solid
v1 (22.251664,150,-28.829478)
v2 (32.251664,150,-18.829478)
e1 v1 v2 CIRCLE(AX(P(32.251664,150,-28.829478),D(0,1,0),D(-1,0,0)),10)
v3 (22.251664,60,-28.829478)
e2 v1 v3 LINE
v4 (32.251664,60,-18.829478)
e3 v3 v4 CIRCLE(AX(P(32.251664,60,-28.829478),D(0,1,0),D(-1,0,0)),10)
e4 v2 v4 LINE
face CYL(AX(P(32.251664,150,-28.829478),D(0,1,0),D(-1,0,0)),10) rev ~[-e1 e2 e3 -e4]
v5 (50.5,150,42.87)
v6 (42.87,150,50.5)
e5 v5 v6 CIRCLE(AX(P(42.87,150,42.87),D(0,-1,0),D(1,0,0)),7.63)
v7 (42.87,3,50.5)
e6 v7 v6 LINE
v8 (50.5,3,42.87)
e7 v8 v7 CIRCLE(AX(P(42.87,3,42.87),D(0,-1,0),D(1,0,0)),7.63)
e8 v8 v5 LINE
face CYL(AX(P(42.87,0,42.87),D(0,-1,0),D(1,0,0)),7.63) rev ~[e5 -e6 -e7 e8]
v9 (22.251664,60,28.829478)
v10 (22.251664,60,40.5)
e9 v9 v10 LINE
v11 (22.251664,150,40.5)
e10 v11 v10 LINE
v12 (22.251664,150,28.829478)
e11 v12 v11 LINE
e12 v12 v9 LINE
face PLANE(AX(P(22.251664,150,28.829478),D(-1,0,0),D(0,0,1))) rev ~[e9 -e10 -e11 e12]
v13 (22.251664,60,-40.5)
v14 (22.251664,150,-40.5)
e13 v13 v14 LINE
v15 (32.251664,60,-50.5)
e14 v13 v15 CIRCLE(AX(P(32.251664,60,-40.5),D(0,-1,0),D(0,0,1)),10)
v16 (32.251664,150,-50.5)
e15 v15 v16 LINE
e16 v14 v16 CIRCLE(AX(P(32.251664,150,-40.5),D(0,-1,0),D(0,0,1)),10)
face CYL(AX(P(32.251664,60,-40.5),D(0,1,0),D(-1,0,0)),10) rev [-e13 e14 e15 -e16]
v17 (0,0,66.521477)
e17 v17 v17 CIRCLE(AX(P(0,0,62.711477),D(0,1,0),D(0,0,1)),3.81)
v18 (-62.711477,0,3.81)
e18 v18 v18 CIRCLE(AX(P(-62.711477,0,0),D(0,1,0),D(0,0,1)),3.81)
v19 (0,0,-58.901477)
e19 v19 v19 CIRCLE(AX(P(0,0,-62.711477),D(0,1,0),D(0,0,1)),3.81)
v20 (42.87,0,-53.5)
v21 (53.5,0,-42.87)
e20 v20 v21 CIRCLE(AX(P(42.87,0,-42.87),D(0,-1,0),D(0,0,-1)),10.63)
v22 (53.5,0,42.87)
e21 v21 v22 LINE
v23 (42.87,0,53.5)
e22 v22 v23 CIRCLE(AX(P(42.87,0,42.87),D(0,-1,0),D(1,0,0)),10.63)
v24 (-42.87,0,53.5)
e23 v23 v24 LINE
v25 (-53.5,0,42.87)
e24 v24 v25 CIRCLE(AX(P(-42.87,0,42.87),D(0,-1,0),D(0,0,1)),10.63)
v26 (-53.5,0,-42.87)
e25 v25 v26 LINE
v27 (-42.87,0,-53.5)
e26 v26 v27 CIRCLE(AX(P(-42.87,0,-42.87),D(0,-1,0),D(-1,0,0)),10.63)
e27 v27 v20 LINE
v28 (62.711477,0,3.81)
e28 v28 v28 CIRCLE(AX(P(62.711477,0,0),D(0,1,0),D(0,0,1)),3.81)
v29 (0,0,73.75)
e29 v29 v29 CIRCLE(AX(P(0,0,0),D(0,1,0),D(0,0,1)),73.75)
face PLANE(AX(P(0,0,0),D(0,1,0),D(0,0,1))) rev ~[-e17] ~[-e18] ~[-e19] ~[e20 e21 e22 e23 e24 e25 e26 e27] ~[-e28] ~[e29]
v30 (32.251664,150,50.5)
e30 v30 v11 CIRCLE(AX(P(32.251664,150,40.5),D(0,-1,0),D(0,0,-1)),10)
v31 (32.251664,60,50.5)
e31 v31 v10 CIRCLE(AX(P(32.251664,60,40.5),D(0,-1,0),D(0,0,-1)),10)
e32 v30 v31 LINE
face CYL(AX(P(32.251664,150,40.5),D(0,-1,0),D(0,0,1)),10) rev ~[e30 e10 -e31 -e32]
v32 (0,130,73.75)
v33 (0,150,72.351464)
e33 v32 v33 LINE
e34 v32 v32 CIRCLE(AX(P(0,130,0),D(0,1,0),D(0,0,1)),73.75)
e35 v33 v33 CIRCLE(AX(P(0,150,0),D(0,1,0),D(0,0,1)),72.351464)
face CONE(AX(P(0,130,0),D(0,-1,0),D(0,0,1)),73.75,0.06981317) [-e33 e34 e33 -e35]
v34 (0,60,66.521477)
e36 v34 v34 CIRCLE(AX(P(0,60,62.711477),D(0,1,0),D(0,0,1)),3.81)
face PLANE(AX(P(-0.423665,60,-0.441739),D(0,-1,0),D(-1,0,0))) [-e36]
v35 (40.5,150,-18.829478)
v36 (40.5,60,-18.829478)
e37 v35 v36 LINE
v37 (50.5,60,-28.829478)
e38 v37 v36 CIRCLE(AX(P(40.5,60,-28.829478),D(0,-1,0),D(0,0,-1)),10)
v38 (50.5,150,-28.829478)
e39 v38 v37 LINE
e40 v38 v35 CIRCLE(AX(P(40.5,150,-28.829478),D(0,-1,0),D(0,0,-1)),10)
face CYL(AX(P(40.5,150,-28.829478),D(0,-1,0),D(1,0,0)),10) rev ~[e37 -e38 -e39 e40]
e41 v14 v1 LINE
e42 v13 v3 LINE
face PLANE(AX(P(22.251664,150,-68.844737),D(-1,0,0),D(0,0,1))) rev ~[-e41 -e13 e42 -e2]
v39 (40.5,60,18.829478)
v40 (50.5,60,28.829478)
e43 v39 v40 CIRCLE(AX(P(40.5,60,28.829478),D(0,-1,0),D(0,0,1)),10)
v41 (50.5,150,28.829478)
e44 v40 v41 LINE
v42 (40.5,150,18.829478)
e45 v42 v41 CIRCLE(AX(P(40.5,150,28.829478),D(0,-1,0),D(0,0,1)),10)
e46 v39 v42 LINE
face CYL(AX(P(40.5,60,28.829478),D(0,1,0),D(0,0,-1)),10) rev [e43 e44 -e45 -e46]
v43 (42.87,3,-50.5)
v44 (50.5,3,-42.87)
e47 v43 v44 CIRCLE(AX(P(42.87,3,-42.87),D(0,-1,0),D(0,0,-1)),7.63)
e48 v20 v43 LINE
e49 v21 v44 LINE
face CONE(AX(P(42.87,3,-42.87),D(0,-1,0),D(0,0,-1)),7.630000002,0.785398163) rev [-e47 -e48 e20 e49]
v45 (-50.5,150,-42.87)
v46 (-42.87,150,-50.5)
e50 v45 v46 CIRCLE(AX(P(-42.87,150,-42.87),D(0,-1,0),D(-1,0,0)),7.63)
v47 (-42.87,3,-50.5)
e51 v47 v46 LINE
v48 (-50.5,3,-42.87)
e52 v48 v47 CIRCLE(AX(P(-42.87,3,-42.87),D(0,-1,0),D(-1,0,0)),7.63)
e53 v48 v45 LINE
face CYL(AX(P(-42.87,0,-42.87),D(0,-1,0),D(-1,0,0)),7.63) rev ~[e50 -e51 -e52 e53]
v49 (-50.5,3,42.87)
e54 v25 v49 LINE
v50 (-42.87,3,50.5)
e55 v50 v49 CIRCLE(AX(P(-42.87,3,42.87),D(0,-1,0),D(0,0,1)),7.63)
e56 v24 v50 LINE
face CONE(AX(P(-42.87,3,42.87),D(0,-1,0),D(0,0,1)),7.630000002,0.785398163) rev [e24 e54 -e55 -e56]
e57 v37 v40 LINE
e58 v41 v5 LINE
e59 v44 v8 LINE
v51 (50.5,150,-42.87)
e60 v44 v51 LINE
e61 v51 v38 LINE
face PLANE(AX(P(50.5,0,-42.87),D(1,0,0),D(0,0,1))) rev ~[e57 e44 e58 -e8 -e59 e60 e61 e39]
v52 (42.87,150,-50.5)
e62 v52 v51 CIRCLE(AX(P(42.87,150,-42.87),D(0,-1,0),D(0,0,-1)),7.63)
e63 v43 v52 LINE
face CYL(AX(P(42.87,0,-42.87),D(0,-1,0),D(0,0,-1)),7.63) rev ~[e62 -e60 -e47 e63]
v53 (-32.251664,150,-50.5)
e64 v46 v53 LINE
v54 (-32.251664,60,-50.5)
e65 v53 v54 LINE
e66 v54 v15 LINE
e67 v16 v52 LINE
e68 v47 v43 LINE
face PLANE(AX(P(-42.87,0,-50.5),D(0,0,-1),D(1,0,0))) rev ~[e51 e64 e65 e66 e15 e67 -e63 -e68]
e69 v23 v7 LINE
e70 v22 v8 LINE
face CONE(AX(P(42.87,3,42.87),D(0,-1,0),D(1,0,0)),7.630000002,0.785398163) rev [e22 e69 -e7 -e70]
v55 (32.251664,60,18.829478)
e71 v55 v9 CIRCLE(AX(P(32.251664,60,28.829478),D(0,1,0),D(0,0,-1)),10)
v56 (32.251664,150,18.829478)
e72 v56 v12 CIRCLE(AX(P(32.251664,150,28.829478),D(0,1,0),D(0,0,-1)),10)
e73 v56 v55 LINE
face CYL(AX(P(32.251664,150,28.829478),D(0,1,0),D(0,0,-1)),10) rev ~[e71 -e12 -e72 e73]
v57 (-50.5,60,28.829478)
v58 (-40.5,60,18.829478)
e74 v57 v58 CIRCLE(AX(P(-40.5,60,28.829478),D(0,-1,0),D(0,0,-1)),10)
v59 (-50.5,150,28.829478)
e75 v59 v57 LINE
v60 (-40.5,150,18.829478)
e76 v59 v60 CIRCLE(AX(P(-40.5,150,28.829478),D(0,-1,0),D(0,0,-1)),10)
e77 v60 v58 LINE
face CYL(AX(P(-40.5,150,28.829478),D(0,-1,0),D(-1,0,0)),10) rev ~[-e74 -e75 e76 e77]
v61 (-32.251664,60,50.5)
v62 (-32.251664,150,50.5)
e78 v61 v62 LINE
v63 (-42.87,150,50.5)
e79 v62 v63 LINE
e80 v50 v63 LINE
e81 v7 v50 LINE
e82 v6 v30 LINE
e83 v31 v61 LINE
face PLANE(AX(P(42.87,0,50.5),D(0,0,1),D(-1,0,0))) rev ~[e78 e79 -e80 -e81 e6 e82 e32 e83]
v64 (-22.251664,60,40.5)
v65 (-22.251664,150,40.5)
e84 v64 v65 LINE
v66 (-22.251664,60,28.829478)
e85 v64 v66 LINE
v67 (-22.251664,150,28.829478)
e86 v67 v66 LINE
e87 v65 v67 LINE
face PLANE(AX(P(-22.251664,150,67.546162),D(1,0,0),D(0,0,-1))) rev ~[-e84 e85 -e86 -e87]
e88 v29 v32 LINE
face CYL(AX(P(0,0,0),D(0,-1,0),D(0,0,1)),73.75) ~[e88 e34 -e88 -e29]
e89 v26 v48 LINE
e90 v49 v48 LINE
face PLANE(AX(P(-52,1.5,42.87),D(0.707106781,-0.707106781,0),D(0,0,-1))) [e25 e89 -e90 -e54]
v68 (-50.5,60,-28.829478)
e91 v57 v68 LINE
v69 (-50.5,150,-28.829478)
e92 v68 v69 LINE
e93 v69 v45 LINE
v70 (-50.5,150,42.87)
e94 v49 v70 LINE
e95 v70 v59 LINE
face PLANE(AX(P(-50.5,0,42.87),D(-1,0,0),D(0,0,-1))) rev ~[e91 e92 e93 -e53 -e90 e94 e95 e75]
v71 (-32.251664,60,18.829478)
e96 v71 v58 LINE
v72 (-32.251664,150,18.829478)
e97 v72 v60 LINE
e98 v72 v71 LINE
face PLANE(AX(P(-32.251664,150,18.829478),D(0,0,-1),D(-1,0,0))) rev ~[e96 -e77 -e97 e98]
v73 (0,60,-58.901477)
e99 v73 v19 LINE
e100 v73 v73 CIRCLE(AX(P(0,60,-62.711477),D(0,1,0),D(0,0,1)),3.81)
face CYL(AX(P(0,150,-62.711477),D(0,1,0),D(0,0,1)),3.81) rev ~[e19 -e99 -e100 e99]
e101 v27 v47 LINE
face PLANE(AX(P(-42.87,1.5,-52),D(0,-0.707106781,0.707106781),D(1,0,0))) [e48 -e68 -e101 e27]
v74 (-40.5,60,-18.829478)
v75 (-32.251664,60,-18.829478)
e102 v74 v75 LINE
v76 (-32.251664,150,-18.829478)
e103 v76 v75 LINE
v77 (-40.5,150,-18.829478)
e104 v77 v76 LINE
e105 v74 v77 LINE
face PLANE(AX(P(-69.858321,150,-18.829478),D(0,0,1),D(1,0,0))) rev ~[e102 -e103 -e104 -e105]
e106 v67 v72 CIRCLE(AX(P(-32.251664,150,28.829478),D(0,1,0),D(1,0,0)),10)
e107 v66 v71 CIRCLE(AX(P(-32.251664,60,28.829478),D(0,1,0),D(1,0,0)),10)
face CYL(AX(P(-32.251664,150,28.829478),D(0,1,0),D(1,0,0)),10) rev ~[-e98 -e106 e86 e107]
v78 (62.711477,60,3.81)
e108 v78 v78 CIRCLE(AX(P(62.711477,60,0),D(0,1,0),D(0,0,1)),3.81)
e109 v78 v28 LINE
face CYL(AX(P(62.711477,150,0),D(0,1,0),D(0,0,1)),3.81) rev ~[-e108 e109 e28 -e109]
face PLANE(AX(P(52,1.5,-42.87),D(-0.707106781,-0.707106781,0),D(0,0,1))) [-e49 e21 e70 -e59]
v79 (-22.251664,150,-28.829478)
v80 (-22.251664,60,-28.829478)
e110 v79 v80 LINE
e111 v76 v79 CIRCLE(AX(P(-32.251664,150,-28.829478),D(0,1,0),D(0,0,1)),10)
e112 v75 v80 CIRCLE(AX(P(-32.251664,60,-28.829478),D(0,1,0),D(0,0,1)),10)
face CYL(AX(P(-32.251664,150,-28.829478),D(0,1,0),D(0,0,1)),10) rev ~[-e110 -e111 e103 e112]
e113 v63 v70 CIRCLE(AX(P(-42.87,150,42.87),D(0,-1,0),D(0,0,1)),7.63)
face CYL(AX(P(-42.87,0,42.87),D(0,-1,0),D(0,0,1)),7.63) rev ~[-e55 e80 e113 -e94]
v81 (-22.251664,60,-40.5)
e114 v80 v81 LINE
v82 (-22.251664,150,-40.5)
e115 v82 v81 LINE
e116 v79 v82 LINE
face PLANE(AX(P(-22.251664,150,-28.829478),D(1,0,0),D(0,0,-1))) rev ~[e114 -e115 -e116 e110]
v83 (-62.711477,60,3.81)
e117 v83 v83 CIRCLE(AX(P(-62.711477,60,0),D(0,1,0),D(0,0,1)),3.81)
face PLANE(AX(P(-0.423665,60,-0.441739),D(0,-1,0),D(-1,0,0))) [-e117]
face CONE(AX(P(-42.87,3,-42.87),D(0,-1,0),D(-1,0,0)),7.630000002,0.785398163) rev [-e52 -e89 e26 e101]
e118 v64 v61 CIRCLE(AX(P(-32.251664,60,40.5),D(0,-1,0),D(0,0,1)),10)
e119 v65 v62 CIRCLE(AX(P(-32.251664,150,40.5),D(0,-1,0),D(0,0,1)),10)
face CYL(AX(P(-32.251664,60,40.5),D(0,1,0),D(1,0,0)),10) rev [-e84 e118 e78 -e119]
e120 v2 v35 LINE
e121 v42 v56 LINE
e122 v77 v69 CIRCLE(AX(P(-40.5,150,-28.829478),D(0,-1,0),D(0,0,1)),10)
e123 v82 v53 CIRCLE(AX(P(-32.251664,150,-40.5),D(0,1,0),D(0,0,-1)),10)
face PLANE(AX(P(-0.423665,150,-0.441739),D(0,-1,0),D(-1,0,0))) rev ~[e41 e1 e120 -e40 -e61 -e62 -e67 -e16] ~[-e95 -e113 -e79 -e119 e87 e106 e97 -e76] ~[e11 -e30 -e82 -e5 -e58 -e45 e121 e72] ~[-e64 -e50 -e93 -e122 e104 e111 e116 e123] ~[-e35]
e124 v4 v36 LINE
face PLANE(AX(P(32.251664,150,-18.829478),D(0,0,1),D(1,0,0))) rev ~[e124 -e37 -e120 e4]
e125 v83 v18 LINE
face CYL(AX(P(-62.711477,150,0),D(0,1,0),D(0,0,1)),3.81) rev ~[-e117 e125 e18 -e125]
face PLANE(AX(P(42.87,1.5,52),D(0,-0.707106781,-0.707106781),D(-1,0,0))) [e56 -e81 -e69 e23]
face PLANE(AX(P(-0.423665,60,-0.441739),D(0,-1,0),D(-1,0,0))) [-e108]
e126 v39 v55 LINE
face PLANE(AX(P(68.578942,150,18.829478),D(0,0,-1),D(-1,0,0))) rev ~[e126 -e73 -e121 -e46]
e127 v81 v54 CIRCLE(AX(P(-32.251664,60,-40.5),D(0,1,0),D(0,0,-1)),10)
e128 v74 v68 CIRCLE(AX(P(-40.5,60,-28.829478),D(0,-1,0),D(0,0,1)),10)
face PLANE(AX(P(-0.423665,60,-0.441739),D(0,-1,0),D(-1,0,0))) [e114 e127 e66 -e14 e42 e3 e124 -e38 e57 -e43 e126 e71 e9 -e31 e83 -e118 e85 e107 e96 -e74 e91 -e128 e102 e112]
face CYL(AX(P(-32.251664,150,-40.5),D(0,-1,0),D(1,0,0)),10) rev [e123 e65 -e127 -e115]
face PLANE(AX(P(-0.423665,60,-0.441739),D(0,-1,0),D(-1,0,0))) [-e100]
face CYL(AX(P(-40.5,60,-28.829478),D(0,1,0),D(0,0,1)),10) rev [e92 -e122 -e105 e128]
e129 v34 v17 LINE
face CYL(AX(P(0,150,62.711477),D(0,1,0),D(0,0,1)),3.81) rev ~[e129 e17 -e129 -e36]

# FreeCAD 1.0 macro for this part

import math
import FreeCAD as App
import Part
import Sketcher

V = App.Vector


def edges_at(feature, points):
    """Names of the edges that pass closest to the given points."""
    edges = feature.Shape.Edges
    near = lambda p: min(range(len(edges)), key=lambda i: edges[i].distToShape(Part.Vertex(*p))[0])
    return sorted({f"Edge{near(p) + 1}" for p in points})

doc = App.newDocument("Part")
params = doc.addObject("Spreadsheet::Sheet", "Params")
for row, (alias, value) in enumerate([
    ("sketch1_diameter", "147.5 mm"),
    ("sketch1_radius", "7.63 mm"),
    ("sketch1_width", "85.74 mm"),
    ("pad1_length", "150 mm"),
    ("sketch2_diameter", "7.62 mm"),
    ("chamfer_size", "20 mm"),
    ("chamfer_size2", "1.398536 mm"),
    ("sketch3_radius", "10 mm"),
    ("pad2_length", "90 mm"),
    ("fillet_radius", "10 mm"),
    ("fillet2_radius", "10 mm"),
    ("fillet3_radius", "10 mm"),
    ("chamfer2_size", "3 mm"),
], start=1):
    params.set(f"A{row}", alias)
    params.set(f"B{row}", "=" + value)
    params.setAlias(f"B{row}", alias)

body = doc.addObject("PartDesign::Body", "Body")

sketch1 = doc.addObject("Sketcher::SketchObject", "Sketch")
body.addObject(sketch1)
sketch1.AttachmentSupport = (doc.XZ_Plane, [""])
sketch1.MapMode = "FlatFace"
sketch1.addGeometry(Part.Circle(V(0, 0, 0), V(0, 0, 1), 73.75), False)
sketch1.addGeometry(Part.ArcOfCircle(Part.Circle(V(42.87, 42.87, 0), V(0, 0, 1), 7.63), math.radians(0), math.radians(90)), False)
sketch1.addGeometry(Part.LineSegment(V(42.87, 50.5, 0), V(-42.87, 50.5, 0)), False)
sketch1.addGeometry(Part.ArcOfCircle(Part.Circle(V(-42.87, 42.87, 0), V(0, 0, 1), 7.63), math.radians(90), math.radians(180)), False)
sketch1.addGeometry(Part.LineSegment(V(-50.5, 42.87, 0), V(-50.5, -42.87, 0)), False)
sketch1.addGeometry(Part.ArcOfCircle(Part.Circle(V(-42.87, -42.87, 0), V(0, 0, 1), 7.63), math.radians(-180), math.radians(-90)), False)
sketch1.addGeometry(Part.LineSegment(V(-42.87, -50.5, 0), V(42.87, -50.5, 0)), False)
sketch1.addGeometry(Part.ArcOfCircle(Part.Circle(V(42.87, -42.87, 0), V(0, 0, 1), 7.63), math.radians(-90), math.radians(0)), False)
sketch1.addGeometry(Part.LineSegment(V(50.5, -42.87, 0), V(50.5, 42.87, 0)), False)
sketch1.addConstraint(Sketcher.Constraint("Tangent", 1, 2, 2, 1))
sketch1.addConstraint(Sketcher.Constraint("Tangent", 2, 2, 3, 1))
sketch1.addConstraint(Sketcher.Constraint("Tangent", 3, 2, 4, 1))
sketch1.addConstraint(Sketcher.Constraint("Tangent", 4, 2, 5, 1))
sketch1.addConstraint(Sketcher.Constraint("Tangent", 5, 2, 6, 1))
sketch1.addConstraint(Sketcher.Constraint("Tangent", 6, 2, 7, 1))
sketch1.addConstraint(Sketcher.Constraint("Tangent", 7, 2, 8, 1))
sketch1.addConstraint(Sketcher.Constraint("Tangent", 8, 2, 1, 1))
sketch1.addConstraint(Sketcher.Constraint("Horizontal", 2))
sketch1.addConstraint(Sketcher.Constraint("Vertical", 4))
sketch1.addConstraint(Sketcher.Constraint("Horizontal", 6))
sketch1.addConstraint(Sketcher.Constraint("Vertical", 8))
sketch1.addConstraint(Sketcher.Constraint("Coincident", 0, 3, -1, 1))
sketch1.addConstraint(Sketcher.Constraint("Equal", 1, 3))
sketch1.addConstraint(Sketcher.Constraint("Equal", 3, 5))
sketch1.addConstraint(Sketcher.Constraint("Equal", 5, 7))
sketch1.addConstraint(Sketcher.Constraint("Symmetric", 1, 3, 5, 3, -1, 1))
sketch1.addConstraint(Sketcher.Constraint("Equal", 6, 4))
sketch1.addConstraint(Sketcher.Constraint("Diameter", 0, 147.5))
sketch1.addConstraint(Sketcher.Constraint("Radius", 1, 7.63))
sketch1.addConstraint(Sketcher.Constraint("DistanceX", 2, 2, 2, 1, 85.74))
sketch1.setExpression("Constraints[18]", "Params.sketch1_diameter")
sketch1.setExpression("Constraints[19]", "Params.sketch1_radius")
sketch1.setExpression("Constraints[20]", "Params.sketch1_width")
pad1 = doc.addObject("PartDesign::Pad", "Pad")
body.addObject(pad1)
pad1.Profile = sketch1
pad1.setExpression("Length", "Params.pad1_length")
pad1.Reversed = True

sketch2 = doc.addObject("Sketcher::SketchObject", "Sketch001")
body.addObject(sketch2)
sketch2.AttachmentSupport = (doc.XZ_Plane, [""])
sketch2.MapMode = "FlatFace"
sketch2.AttachmentOffset = App.Placement(V(0, 0, -150), App.Rotation())
sketch2.addGeometry(Part.Circle(V(-62.711477, 0, 0), V(0, 0, 1), 3.81), False)
sketch2.addGeometry(Part.Circle(V(0, -62.711477, 0), V(0, 0, 1), 3.81), False)
sketch2.addGeometry(Part.Circle(V(62.711477, 0, 0), V(0, 0, 1), 3.81), False)
sketch2.addGeometry(Part.Circle(V(0, 62.711477, 0), V(0, 0, 1), 3.81), False)
sketch2.addConstraint(Sketcher.Constraint("Equal", 0, 1))
sketch2.addConstraint(Sketcher.Constraint("Equal", 1, 2))
sketch2.addConstraint(Sketcher.Constraint("Equal", 2, 3))
sketch2.addConstraint(Sketcher.Constraint("Symmetric", 0, 3, 2, 3, -1, 1))
sketch2.addConstraint(Sketcher.Constraint("Symmetric", 1, 3, 3, 3, -1, 1))
sketch2.addConstraint(Sketcher.Constraint("PointOnObject", 0, 3, -1))
sketch2.addConstraint(Sketcher.Constraint("PointOnObject", 1, 3, -2))
sketch2.addConstraint(Sketcher.Constraint("Diameter", 0, 7.62))
sketch2.addConstraint(Sketcher.Constraint("DistanceX", 0, 3, -1, 1, 62.711477))
sketch2.addConstraint(Sketcher.Constraint("DistanceY", 1, 3, -1, 1, 62.711477))
sketch2.setExpression("Constraints[7]", "Params.sketch2_diameter")
pocket1 = doc.addObject("PartDesign::Pocket", "Pocket")
body.addObject(pocket1)
pocket1.Profile = sketch2
pocket1.Type = "ThroughAll"
pocket1.Reversed = True
doc.recompute()

chamfer = doc.addObject("PartDesign::Chamfer", "Chamfer")
body.addObject(chamfer)
chamfer.Base = (pocket1, edges_at(pocket1, [(0, 150, -73.75)]))
chamfer.ChamferType = "Two distances"
chamfer.setExpression("Size", "Params.chamfer_size")
chamfer.setExpression("Size2", "Params.chamfer_size2")

sketch3 = doc.addObject("Sketcher::SketchObject", "Sketch002")
body.addObject(sketch3)
sketch3.AttachmentSupport = (doc.XZ_Plane, [""])
sketch3.MapMode = "FlatFace"
sketch3.AttachmentOffset = App.Placement(V(0, 0, -150), App.Rotation())
sketch3.addGeometry(Part.LineSegment(V(-22.251664, -68.844737, 0), V(-22.251664, -28.829478, 0)), False)
sketch3.addGeometry(Part.ArcOfCircle(Part.Circle(V(-32.251664, -28.829478, 0), V(0, 0, 1), 10), math.radians(0), math.radians(90)), False)
sketch3.addGeometry(Part.LineSegment(V(-32.251664, -18.829478, 0), V(-69.858321, -18.829478, 0)), False)
sketch3.addGeometry(Part.LineSegment(V(-69.858321, -18.829478, 0), V(-69.858321, 18.829478, 0)), False)
sketch3.addGeometry(Part.LineSegment(V(-69.858321, 18.829478, 0), V(-32.251664, 18.829478, 0)), False)
sketch3.addGeometry(Part.ArcOfCircle(Part.Circle(V(-32.251664, 28.829478, 0), V(0, 0, 1), 10), math.radians(-90), math.radians(0)), False)
sketch3.addGeometry(Part.LineSegment(V(-22.251664, 28.829478, 0), V(-22.251664, 67.546162, 0)), False)
sketch3.addGeometry(Part.LineSegment(V(-22.251664, 67.546162, 0), V(22.251664, 67.546162, 0)), False)
sketch3.addGeometry(Part.LineSegment(V(22.251664, 67.546162, 0), V(22.251664, 28.829478, 0)), False)
sketch3.addGeometry(Part.ArcOfCircle(Part.Circle(V(32.251664, 28.829478, 0), V(0, 0, 1), 10), math.radians(-180), math.radians(-90)), False)
sketch3.addGeometry(Part.LineSegment(V(32.251664, 18.829478, 0), V(68.578942, 18.829478, 0)), False)
sketch3.addGeometry(Part.LineSegment(V(68.578942, 18.829478, 0), V(68.578942, -18.829478, 0)), False)
sketch3.addGeometry(Part.LineSegment(V(68.578942, -18.829478, 0), V(32.251664, -18.829478, 0)), False)
sketch3.addGeometry(Part.ArcOfCircle(Part.Circle(V(32.251664, -28.829478, 0), V(0, 0, 1), 10), math.radians(90), math.radians(180)), False)
sketch3.addGeometry(Part.LineSegment(V(22.251664, -28.829478, 0), V(22.251664, -68.844737, 0)), False)
sketch3.addGeometry(Part.LineSegment(V(22.251664, -68.844737, 0), V(-22.251664, -68.844737, 0)), False)
sketch3.addConstraint(Sketcher.Constraint("Tangent", 0, 2, 1, 1))
sketch3.addConstraint(Sketcher.Constraint("Tangent", 1, 2, 2, 1))
sketch3.addConstraint(Sketcher.Constraint("Coincident", 2, 2, 3, 1))
sketch3.addConstraint(Sketcher.Constraint("Coincident", 3, 2, 4, 1))
sketch3.addConstraint(Sketcher.Constraint("Tangent", 4, 2, 5, 1))
sketch3.addConstraint(Sketcher.Constraint("Tangent", 5, 2, 6, 1))
sketch3.addConstraint(Sketcher.Constraint("Coincident", 6, 2, 7, 1))
sketch3.addConstraint(Sketcher.Constraint("Coincident", 7, 2, 8, 1))
sketch3.addConstraint(Sketcher.Constraint("Tangent", 8, 2, 9, 1))
sketch3.addConstraint(Sketcher.Constraint("Tangent", 9, 2, 10, 1))
sketch3.addConstraint(Sketcher.Constraint("Coincident", 10, 2, 11, 1))
sketch3.addConstraint(Sketcher.Constraint("Coincident", 11, 2, 12, 1))
sketch3.addConstraint(Sketcher.Constraint("Tangent", 12, 2, 13, 1))
sketch3.addConstraint(Sketcher.Constraint("Tangent", 13, 2, 14, 1))
sketch3.addConstraint(Sketcher.Constraint("Coincident", 14, 2, 15, 1))
sketch3.addConstraint(Sketcher.Constraint("Coincident", 15, 2, 0, 1))
sketch3.addConstraint(Sketcher.Constraint("Vertical", 0))
sketch3.addConstraint(Sketcher.Constraint("Horizontal", 2))
sketch3.addConstraint(Sketcher.Constraint("Vertical", 3))
sketch3.addConstraint(Sketcher.Constraint("Horizontal", 4))
sketch3.addConstraint(Sketcher.Constraint("Vertical", 6))
sketch3.addConstraint(Sketcher.Constraint("Horizontal", 7))
sketch3.addConstraint(Sketcher.Constraint("Vertical", 8))
sketch3.addConstraint(Sketcher.Constraint("Horizontal", 10))
sketch3.addConstraint(Sketcher.Constraint("Vertical", 11))
sketch3.addConstraint(Sketcher.Constraint("Horizontal", 12))
sketch3.addConstraint(Sketcher.Constraint("Vertical", 14))
sketch3.addConstraint(Sketcher.Constraint("Horizontal", 15))
sketch3.addConstraint(Sketcher.Constraint("Equal", 1, 5))
sketch3.addConstraint(Sketcher.Constraint("Equal", 5, 9))
sketch3.addConstraint(Sketcher.Constraint("Equal", 9, 13))
sketch3.addConstraint(Sketcher.Constraint("Symmetric", 1, 3, 9, 3, -1, 1))
sketch3.addConstraint(Sketcher.Constraint("Symmetric", 5, 3, 13, 3, -1, 1))
sketch3.addConstraint(Sketcher.Constraint("Symmetric", 5, 3, 9, 3, -2))
sketch3.addConstraint(Sketcher.Constraint("Radius", 1, 10.0))
sketch3.addConstraint(Sketcher.Constraint("DistanceX", 10, 1, 10, 2, 36.327278))
sketch3.addConstraint(Sketcher.Constraint("DistanceY", 0, 1, 0, 2, 40.015258))
sketch3.addConstraint(Sketcher.Constraint("DistanceX", 2, 2, 2, 1, 37.606657))
sketch3.addConstraint(Sketcher.Constraint("DistanceX", 7, 1, 7, 2, 44.503328))
sketch3.addConstraint(Sketcher.Constraint("DistanceY", 3, 1, 3, 2, 37.658957))
sketch3.addConstraint(Sketcher.Constraint("DistanceY", 6, 1, 6, 2, 38.716684))
sketch3.setExpression("Constraints[34]", "Params.sketch3_radius")
pad2 = doc.addObject("PartDesign::Pad", "Pad001")
body.addObject(pad2)
pad2.Profile = sketch3
pad2.setExpression("Length", "Params.pad2_length")
doc.recompute()

fillet = doc.addObject("PartDesign::Fillet", "Fillet")
body.addObject(fillet)
fillet.Base = (pad2, edges_at(pad2, [(-22.252, 105, -50.5)]))
fillet.setExpression("Radius", "Params.fillet_radius")
doc.recompute()

fillet2 = doc.addObject("PartDesign::Fillet", "Fillet001")
body.addObject(fillet2)
fillet2.Base = (fillet, edges_at(fillet, [(-50.5, 105, -18.829)]))
fillet2.setExpression("Radius", "Params.fillet2_radius")
doc.recompute()

fillet3 = doc.addObject("PartDesign::Fillet", "Fillet002")
body.addObject(fillet3)
fillet3.Base = (fillet2, edges_at(fillet2, [
    (50.5, 105, 18.829),
    (50.5, 105, -18.829),
    (-22.252, 105, 50.5),
    (22.252, 105, 50.5),
    (22.252, 105, -50.5),
    (-50.5, 105, 18.829),
]))
fillet3.setExpression("Radius", "Params.fillet3_radius")
doc.recompute()

chamfer2 = doc.addObject("PartDesign::Chamfer", "Chamfer001")
body.addObject(chamfer2)
chamfer2.Base = (fillet3, edges_at(fillet3, [
    (-48.265, 0, -48.265),
    (-50.5, 0, 0),
    (-48.265, 0, 48.265),
    (0, 0, 50.5),
    (48.265, 0, 48.265),
    (50.5, 0, 0),
    (48.265, 0, -48.265),
    (0, 0, -50.5),
]))
chamfer2.setExpression("Size", "Params.chamfer2_size")

doc.recompute()
